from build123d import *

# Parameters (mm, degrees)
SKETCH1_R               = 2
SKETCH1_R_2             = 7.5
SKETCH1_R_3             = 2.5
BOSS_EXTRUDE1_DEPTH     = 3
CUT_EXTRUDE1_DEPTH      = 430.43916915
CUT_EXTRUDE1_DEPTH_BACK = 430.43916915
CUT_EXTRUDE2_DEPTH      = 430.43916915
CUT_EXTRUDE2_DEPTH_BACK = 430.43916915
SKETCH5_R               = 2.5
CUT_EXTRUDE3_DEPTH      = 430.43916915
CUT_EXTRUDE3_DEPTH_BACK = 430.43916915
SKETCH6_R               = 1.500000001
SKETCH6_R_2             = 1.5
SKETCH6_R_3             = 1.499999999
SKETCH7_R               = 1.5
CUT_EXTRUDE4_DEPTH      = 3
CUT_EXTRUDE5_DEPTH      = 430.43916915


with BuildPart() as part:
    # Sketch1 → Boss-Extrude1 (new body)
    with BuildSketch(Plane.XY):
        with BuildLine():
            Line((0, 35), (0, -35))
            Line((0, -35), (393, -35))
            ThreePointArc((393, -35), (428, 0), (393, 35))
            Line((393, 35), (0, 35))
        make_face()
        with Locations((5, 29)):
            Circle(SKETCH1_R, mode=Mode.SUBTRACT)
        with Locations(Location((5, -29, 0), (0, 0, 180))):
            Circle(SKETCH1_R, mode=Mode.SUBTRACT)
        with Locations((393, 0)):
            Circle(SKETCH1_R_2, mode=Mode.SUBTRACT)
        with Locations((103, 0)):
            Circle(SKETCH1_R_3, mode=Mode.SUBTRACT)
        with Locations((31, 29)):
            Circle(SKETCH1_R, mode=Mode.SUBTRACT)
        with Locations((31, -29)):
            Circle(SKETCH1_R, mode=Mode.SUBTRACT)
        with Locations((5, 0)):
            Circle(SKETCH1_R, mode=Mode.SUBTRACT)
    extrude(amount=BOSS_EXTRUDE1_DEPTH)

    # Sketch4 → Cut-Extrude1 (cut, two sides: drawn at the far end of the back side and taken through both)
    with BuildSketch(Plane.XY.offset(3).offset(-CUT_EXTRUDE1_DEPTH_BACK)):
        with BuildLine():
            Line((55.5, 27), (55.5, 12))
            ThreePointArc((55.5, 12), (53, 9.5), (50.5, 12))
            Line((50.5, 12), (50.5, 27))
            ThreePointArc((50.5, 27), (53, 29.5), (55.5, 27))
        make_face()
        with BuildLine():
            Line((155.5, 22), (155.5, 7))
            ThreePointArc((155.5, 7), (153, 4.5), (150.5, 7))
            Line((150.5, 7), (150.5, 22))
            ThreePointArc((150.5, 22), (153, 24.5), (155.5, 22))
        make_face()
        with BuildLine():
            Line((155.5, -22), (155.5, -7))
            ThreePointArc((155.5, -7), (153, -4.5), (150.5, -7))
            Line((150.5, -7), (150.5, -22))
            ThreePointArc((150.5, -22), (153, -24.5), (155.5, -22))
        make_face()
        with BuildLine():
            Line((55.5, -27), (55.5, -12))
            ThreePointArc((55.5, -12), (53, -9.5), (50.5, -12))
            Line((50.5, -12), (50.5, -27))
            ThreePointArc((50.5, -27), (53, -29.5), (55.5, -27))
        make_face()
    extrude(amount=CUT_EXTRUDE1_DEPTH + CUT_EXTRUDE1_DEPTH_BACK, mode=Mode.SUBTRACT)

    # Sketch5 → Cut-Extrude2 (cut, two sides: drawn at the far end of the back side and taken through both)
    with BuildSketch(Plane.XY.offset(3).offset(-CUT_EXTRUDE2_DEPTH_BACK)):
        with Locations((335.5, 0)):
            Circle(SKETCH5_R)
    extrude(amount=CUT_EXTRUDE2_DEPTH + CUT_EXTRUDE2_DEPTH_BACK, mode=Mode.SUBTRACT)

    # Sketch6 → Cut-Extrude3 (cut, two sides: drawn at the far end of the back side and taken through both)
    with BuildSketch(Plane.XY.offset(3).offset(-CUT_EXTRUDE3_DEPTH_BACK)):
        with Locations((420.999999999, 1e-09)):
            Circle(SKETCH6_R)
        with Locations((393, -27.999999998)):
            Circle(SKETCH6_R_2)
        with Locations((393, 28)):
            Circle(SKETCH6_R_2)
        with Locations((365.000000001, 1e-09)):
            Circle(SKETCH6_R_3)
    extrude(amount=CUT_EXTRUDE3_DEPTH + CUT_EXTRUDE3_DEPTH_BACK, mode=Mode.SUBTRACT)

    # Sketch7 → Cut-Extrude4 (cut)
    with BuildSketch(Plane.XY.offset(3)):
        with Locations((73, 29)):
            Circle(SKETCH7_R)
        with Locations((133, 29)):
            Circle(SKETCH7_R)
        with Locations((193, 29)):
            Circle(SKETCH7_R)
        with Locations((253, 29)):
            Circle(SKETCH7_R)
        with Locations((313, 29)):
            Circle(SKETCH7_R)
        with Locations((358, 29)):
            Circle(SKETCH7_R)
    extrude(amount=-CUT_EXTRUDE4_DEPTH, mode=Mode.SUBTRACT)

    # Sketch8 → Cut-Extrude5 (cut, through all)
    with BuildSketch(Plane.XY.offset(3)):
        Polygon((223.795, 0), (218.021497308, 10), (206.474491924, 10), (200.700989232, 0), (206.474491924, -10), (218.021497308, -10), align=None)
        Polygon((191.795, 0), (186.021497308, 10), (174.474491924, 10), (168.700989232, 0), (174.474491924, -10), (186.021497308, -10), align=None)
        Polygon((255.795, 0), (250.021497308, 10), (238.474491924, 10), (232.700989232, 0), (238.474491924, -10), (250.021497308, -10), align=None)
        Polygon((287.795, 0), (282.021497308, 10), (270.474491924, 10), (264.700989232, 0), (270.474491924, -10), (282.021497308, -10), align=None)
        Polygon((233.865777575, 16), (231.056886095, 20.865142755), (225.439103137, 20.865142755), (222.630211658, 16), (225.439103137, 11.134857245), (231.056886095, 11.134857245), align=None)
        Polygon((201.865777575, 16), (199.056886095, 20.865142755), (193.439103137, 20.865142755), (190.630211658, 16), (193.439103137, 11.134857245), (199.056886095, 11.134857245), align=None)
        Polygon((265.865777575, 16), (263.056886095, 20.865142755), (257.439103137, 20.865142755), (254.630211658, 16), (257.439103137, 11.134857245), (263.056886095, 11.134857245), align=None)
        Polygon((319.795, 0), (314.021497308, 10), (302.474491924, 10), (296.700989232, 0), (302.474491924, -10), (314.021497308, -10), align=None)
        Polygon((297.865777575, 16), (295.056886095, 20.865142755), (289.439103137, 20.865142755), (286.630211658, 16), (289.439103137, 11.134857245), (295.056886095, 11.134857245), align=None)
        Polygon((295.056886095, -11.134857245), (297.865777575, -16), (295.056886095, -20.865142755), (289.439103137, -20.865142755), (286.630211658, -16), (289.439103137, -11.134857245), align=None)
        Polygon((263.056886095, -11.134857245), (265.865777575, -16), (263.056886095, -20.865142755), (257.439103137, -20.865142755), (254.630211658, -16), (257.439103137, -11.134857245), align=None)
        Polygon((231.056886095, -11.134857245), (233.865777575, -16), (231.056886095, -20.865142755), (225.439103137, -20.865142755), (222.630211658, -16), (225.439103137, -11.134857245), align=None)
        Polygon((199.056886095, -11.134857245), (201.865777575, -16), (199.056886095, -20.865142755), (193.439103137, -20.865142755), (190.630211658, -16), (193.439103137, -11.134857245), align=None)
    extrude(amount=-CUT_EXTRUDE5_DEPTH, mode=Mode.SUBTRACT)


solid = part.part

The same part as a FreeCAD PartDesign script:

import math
import FreeCAD as App
import Part
import Sketcher
from FreeCAD import Vector
Q = App.Units.Quantity

doc = App.newDocument("Part")
body = doc.addObject("PartDesign::Body", "Body")

# Sketch on XY plane
sketch1 = body.newObject("Sketcher::SketchObject", "Sketch")
sketch1.AttachmentSupport = (doc.getObject("XY_Plane"), [""])
sketch1.MapMode = "FlatFace"
sketch1.addGeometry([
    Part.LineSegment(Vector(0, 35, 0), Vector(0, -35, 0)),  # 0
    Part.LineSegment(Vector(0, -35, 0), Vector(393, -35, 0)),  # 1
    Part.ArcOfCircle(Part.Circle(Vector(393, 0, 0), Vector(0, 0, 1), 35), math.radians(-90), math.radians(90)),  # 2
    Part.LineSegment(Vector(393, 35, 0), Vector(0, 35, 0)),  # 3
    Part.Circle(Vector(5, -29, 0), Vector(0, 0, 1), 2),  # 4
    Part.Circle(Vector(31, -29, 0), Vector(0, 0, 1), 2),  # 5
    Part.Circle(Vector(5, 0, 0), Vector(0, 0, 1), 2),  # 6
    Part.Circle(Vector(103, 0, 0), Vector(0, 0, 1), 2.5),  # 7
    Part.Circle(Vector(5, 29, 0), Vector(0, 0, 1), 2),  # 8
    Part.Circle(Vector(31, 29, 0), Vector(0, 0, 1), 2),  # 9
    Part.Circle(Vector(393, 0, 0), Vector(0, 0, 1), 7.5),  # 10
], False)
sketch1.addConstraint([
    Sketcher.Constraint("Coincident", 0, 2, 1, 1),
    Sketcher.Constraint("Tangent", 1, 2, 2, 1),
    Sketcher.Constraint("Tangent", 2, 2, 3, 1),
    Sketcher.Constraint("Coincident", 3, 2, 0, 1),
    Sketcher.Constraint("Vertical", 0),
    Sketcher.Constraint("Horizontal", 1),
    Sketcher.Constraint("Horizontal", 3),
    Sketcher.Constraint("Coincident", 10, 3, 2, 3),
    Sketcher.Constraint("Equal", 4, 5),
    Sketcher.Constraint("Equal", 5, 6),
    Sketcher.Constraint("Equal", 6, 8),
    Sketcher.Constraint("Equal", 8, 9),
    Sketcher.Constraint("Symmetric", 0, 2, 3, 2, -1, 1),
    Sketcher.Constraint("Symmetric", 4, 3, 8, 3, -1),
    Sketcher.Constraint("Symmetric", 5, 3, 9, 3, -1),
    Sketcher.Constraint("PointOnObject", 6, 3, -1),
    Sketcher.Constraint("PointOnObject", 7, 3, -1),
    Sketcher.Constraint("Horizontal", 4, 3, 5, 3),
    Sketcher.Constraint("Vertical", 4, 3, 6, 3),
    Sketcher.Constraint("Diameter", 4, 4.0),
    Sketcher.Constraint("Diameter", 7, 5.0),
    Sketcher.Constraint("Diameter", 10, 15.0),
    Sketcher.Constraint("Radius", 2, 35.0),
    Sketcher.Constraint("DistanceX", 1, 1, 1, 2, 393.0),
    Sketcher.Constraint("DistanceX", -1, 1, 4, 3, 5.0),
    Sketcher.Constraint("DistanceY", 4, 3, -1, 1, 29.0),
    Sketcher.Constraint("DistanceX", -1, 1, 5, 3, 31.0),
    Sketcher.Constraint("DistanceX", -1, 1, 7, 3, 103.0),
])
pad1 = body.newObject("PartDesign::Pad", "Pad")
pad1.Profile = sketch1
pad1.Length = 3

# Sketch on XY plane
sketch2 = body.newObject("Sketcher::SketchObject", "Sketch001")
sketch2.AttachmentSupport = (doc.getObject("XY_Plane"), [""])
sketch2.MapMode = "FlatFace"
sketch2.AttachmentOffset = App.Placement(Vector(0, 0, 3), App.Rotation())
sketch2.addGeometry([
    Part.LineSegment(Vector(55.5, 12, 0), Vector(55.5, 27, 0)),  # 0
    Part.ArcOfCircle(Part.Circle(Vector(53, 27, 0), Vector(0, 0, 1), 2.5), math.radians(0), math.radians(180)),  # 1
    Part.LineSegment(Vector(50.5, 27, 0), Vector(50.5, 12, 0)),  # 2
    Part.ArcOfCircle(Part.Circle(Vector(53, 12, 0), Vector(0, 0, 1), 2.5), math.radians(180), math.radians(360)),  # 3
    Part.LineSegment(Vector(155.5, 7, 0), Vector(155.5, 22, 0)),  # 4
    Part.ArcOfCircle(Part.Circle(Vector(153, 22, 0), Vector(0, 0, 1), 2.5), math.radians(0), math.radians(180)),  # 5
    Part.LineSegment(Vector(150.5, 22, 0), Vector(150.5, 7, 0)),  # 6
    Part.ArcOfCircle(Part.Circle(Vector(153, 7, 0), Vector(0, 0, 1), 2.5), math.radians(180), math.radians(360)),  # 7
    Part.LineSegment(Vector(155.5, -22, 0), Vector(155.5, -7, 0)),  # 8
    Part.ArcOfCircle(Part.Circle(Vector(153, -7, 0), Vector(0, 0, 1), 2.5), math.radians(0), math.radians(180)),  # 9
    Part.LineSegment(Vector(150.5, -7, 0), Vector(150.5, -22, 0)),  # 10
    Part.ArcOfCircle(Part.Circle(Vector(153, -22, 0), Vector(0, 0, 1), 2.5), math.radians(180), math.radians(360)),  # 11
    Part.LineSegment(Vector(55.5, -27, 0), Vector(55.5, -12, 0)),  # 12
    Part.ArcOfCircle(Part.Circle(Vector(53, -12, 0), Vector(0, 0, 1), 2.5), math.radians(0), math.radians(180)),  # 13
    Part.LineSegment(Vector(50.5, -12, 0), Vector(50.5, -27, 0)),  # 14
    Part.ArcOfCircle(Part.Circle(Vector(53, -27, 0), Vector(0, 0, 1), 2.5), math.radians(180), math.radians(360)),  # 15
], False)
sketch2.addConstraint([
    Sketcher.Constraint("Tangent", 0, 2, 1, 1),
    Sketcher.Constraint("Tangent", 1, 2, 2, 1),
    Sketcher.Constraint("Tangent", 2, 2, 3, 1),
    Sketcher.Constraint("Tangent", 3, 2, 0, 1),
    Sketcher.Constraint("Tangent", 4, 2, 5, 1),
    Sketcher.Constraint("Tangent", 5, 2, 6, 1),
    Sketcher.Constraint("Tangent", 6, 2, 7, 1),
    Sketcher.Constraint("Tangent", 7, 2, 4, 1),
    Sketcher.Constraint("Tangent", 8, 2, 9, 1),
    Sketcher.Constraint("Tangent", 9, 2, 10, 1),
    Sketcher.Constraint("Tangent", 10, 2, 11, 1),
    Sketcher.Constraint("Tangent", 11, 2, 8, 1),
    Sketcher.Constraint("Tangent", 12, 2, 13, 1),
    Sketcher.Constraint("Tangent", 13, 2, 14, 1),
    Sketcher.Constraint("Tangent", 14, 2, 15, 1),
    Sketcher.Constraint("Tangent", 15, 2, 12, 1),
    Sketcher.Constraint("Vertical", 0),
    Sketcher.Constraint("Vertical", 2),
    Sketcher.Constraint("Vertical", 4),
    Sketcher.Constraint("Vertical", 6),
    Sketcher.Constraint("Vertical", 8),
    Sketcher.Constraint("Vertical", 10),
    Sketcher.Constraint("Vertical", 12),
    Sketcher.Constraint("Vertical", 14),
    Sketcher.Constraint("Equal", 3, 5),
    Sketcher.Constraint("Equal", 7, 9),
    Sketcher.Constraint("Equal", 11, 13),
    Sketcher.Constraint("Symmetric", 7, 3, 9, 3, -1),
    Sketcher.Constraint("Symmetric", 3, 3, 13, 3, -1),
    Sketcher.Constraint("Equal", 2, 4),
    Sketcher.Constraint("Equal", 6, 8),
    Sketcher.Constraint("Equal", 10, 12),
    Sketcher.Constraint("Radius", 1, 2.5),
    Sketcher.Constraint("DistanceY", 0, 1, 0, 2, 15.0),
    Sketcher.Constraint("DistanceX", -1, 1, 1, 3, 53.0),
    Sketcher.Constraint("DistanceY", -1, 1, 1, 3, 27.0),
    Sketcher.Constraint("DistanceX", -1, 1, 5, 3, 153.0),
    Sketcher.Constraint("DistanceY", -1, 1, 5, 3, 22.0),
])
pocket1 = body.newObject("PartDesign::Pocket", "Pocket")
pocket1.Profile = sketch2
pocket1.Type = "ThroughAll"
pocket1.Midplane = True

# Sketch on XY plane
sketch3 = body.newObject("Sketcher::SketchObject", "Sketch002")
sketch3.AttachmentSupport = (doc.getObject("XY_Plane"), [""])
sketch3.MapMode = "FlatFace"
sketch3.AttachmentOffset = App.Placement(Vector(0, 0, 3), App.Rotation())
sketch3.addGeometry(Part.Circle(Vector(335.5, 0, 0), Vector(0, 0, 1), 2.5), False)
sketch3.addConstraint([
    Sketcher.Constraint("PointOnObject", 0, 3, -1),
    Sketcher.Constraint("Diameter", 0, 5.0),
    Sketcher.Constraint("DistanceX", -1, 1, 0, 3, 335.5),
])
pocket2 = body.newObject("PartDesign::Pocket", "Pocket001")
pocket2.Profile = sketch3
pocket2.Type = "ThroughAll"
pocket2.Midplane = True

# Sketch on XY plane
sketch4 = body.newObject("Sketcher::SketchObject", "Sketch003")
sketch4.AttachmentSupport = (doc.getObject("XY_Plane"), [""])
sketch4.MapMode = "FlatFace"
sketch4.AttachmentOffset = App.Placement(Vector(0, 0, 3), App.Rotation())
sketch4.addGeometry([
    Part.Circle(Vector(421, 0, 0), Vector(0, 0, 1), 1.5),
    Part.Circle(Vector(393, -28, 0), Vector(0, 0, 1), 1.5),
    Part.Circle(Vector(393, 28, 0), Vector(0, 0, 1), 1.5),
    Part.Circle(Vector(365, 0, 0), Vector(0, 0, 1), 1.5),
], False)
sketch4.addConstraint([
    Sketcher.Constraint("Equal", 0, 1),
    Sketcher.Constraint("Equal", 1, 2),
    Sketcher.Constraint("Equal", 2, 3),
    Sketcher.Constraint("Symmetric", 1, 3, 2, 3, -1),
    Sketcher.Constraint("PointOnObject", 0, 3, -1),
    Sketcher.Constraint("PointOnObject", 3, 3, -1),
    Sketcher.Constraint("Diameter", 0, 3.0),
    Sketcher.Constraint("DistanceX", -1, 1, 0, 3, 421.0),
    Sketcher.Constraint("DistanceX", -1, 1, 1, 3, 393.0),
    Sketcher.Constraint("DistanceY", 1, 3, -1, 1, 28.0),
    Sketcher.Constraint("DistanceX", -1, 1, 3, 3, 365.0),
])
pocket3 = body.newObject("PartDesign::Pocket", "Pocket002")
pocket3.Profile = sketch4
pocket3.Type = "ThroughAll"
pocket3.Midplane = True

# Sketch on XY plane
sketch5 = body.newObject("Sketcher::SketchObject", "Sketch004")
sketch5.AttachmentSupport = (doc.getObject("XY_Plane"), [""])
sketch5.MapMode = "FlatFace"
sketch5.AttachmentOffset = App.Placement(Vector(0, 0, 3), App.Rotation())
sketch5.addGeometry([
    Part.Circle(Vector(73, 29, 0), Vector(0, 0, 1), 1.5),  # 0
    Part.Circle(Vector(133, 29, 0), Vector(0, 0, 1), 1.5),  # 1
    Part.Circle(Vector(193, 29, 0), Vector(0, 0, 1), 1.5),  # 2
    Part.Circle(Vector(253, 29, 0), Vector(0, 0, 1), 1.5),  # 3
    Part.Circle(Vector(313, 29, 0), Vector(0, 0, 1), 1.5),  # 4
    Part.Circle(Vector(358, 29, 0), Vector(0, 0, 1), 1.5),  # 5
], False)
sketch5.addConstraint([
    Sketcher.Constraint("Equal", 0, 1),
    Sketcher.Constraint("Equal", 1, 2),
    Sketcher.Constraint("Equal", 2, 3),
    Sketcher.Constraint("Equal", 3, 4),
    Sketcher.Constraint("Equal", 4, 5),
    Sketcher.Constraint("Horizontal", 0, 3, 1, 3),
    Sketcher.Constraint("Horizontal", 1, 3, 2, 3),
    Sketcher.Constraint("Horizontal", 2, 3, 3, 3),
    Sketcher.Constraint("Horizontal", 3, 3, 4, 3),
    Sketcher.Constraint("Horizontal", 4, 3, 5, 3),
    Sketcher.Constraint("Diameter", 0, 3.0),
    Sketcher.Constraint("DistanceX", -1, 1, 0, 3, 73.0),
    Sketcher.Constraint("DistanceY", -1, 1, 0, 3, 29.0),
    Sketcher.Constraint("DistanceX", -1, 1, 1, 3, 133.0),
    Sketcher.Constraint("DistanceX", -1, 1, 2, 3, 193.0),
    Sketcher.Constraint("DistanceX", -1, 1, 3, 3, 253.0),
    Sketcher.Constraint("DistanceX", -1, 1, 4, 3, 313.0),
    Sketcher.Constraint("DistanceX", -1, 1, 5, 3, 358.0),
])
pocket4 = body.newObject("PartDesign::Pocket", "Pocket003")
pocket4.Profile = sketch5
pocket4.Length = 3

# Sketch on XY plane
sketch6 = body.newObject("Sketcher::SketchObject", "Sketch005")
sketch6.AttachmentSupport = (doc.getObject("XY_Plane"), [""])
sketch6.MapMode = "FlatFace"
sketch6.AttachmentOffset = App.Placement(Vector(0, 0, 3), App.Rotation())
sketch6.addGeometry([
    Part.LineSegment(Vector(223.795, 0, 0), Vector(218.021497, 10, 0)),  # 0
    Part.LineSegment(Vector(218.021497, 10, 0), Vector(206.474492, 10, 0)),  # 1
    Part.LineSegment(Vector(206.474492, 10, 0), Vector(200.700989, 0, 0)),  # 2
    Part.LineSegment(Vector(200.700989, 0, 0), Vector(206.474492, -10, 0)),  # 3
    Part.LineSegment(Vector(206.474492, -10, 0), Vector(218.021497, -10, 0)),  # 4
    Part.LineSegment(Vector(218.021497, -10, 0), Vector(223.795, 0, 0)),  # 5
    Part.LineSegment(Vector(191.795, 0, 0), Vector(186.021497, 10, 0)),  # 6
    Part.LineSegment(Vector(186.021497, 10, 0), Vector(174.474492, 10, 0)),  # 7
    Part.LineSegment(Vector(174.474492, 10, 0), Vector(168.700989, 0, 0)),  # 8
    Part.LineSegment(Vector(168.700989, 0, 0), Vector(174.474492, -10, 0)),  # 9
    Part.LineSegment(Vector(174.474492, -10, 0), Vector(186.021497, -10, 0)),  # 10
    Part.LineSegment(Vector(186.021497, -10, 0), Vector(191.795, 0, 0)),  # 11
    Part.LineSegment(Vector(255.795, 0, 0), Vector(250.021497, 10, 0)),  # 12
    Part.LineSegment(Vector(250.021497, 10, 0), Vector(238.474492, 10, 0)),  # 13
    Part.LineSegment(Vector(238.474492, 10, 0), Vector(232.700989, 0, 0)),  # 14
    Part.LineSegment(Vector(232.700989, 0, 0), Vector(238.474492, -10, 0)),  # 15
    Part.LineSegment(Vector(238.474492, -10, 0), Vector(250.021497, -10, 0)),  # 16
    Part.LineSegment(Vector(250.021497, -10, 0), Vector(255.795, 0, 0)),  # 17
    Part.LineSegment(Vector(287.795, 0, 0), Vector(282.021497, 10, 0)),  # 18
    Part.LineSegment(Vector(282.021497, 10, 0), Vector(270.474492, 10, 0)),  # 19
    Part.LineSegment(Vector(270.474492, 10, 0), Vector(264.700989, 0, 0)),  # 20
    Part.LineSegment(Vector(264.700989, 0, 0), Vector(270.474492, -10, 0)),  # 21
    Part.LineSegment(Vector(270.474492, -10, 0), Vector(282.021497, -10, 0)),  # 22
    Part.LineSegment(Vector(282.021497, -10, 0), Vector(287.795, 0, 0)),  # 23
    Part.LineSegment(Vector(233.865778, 16, 0), Vector(231.056886, 20.865143, 0)),  # 24
    Part.LineSegment(Vector(231.056886, 20.865143, 0), Vector(225.439103, 20.865143, 0)),  # 25
    Part.LineSegment(Vector(225.439103, 20.865143, 0), Vector(222.630212, 16, 0)),  # 26
    Part.LineSegment(Vector(222.630212, 16, 0), Vector(225.439103, 11.134857, 0)),  # 27
    Part.LineSegment(Vector(225.439103, 11.134857, 0), Vector(231.056886, 11.134857, 0)),  # 28
    Part.LineSegment(Vector(231.056886, 11.134857, 0), Vector(233.865778, 16, 0)),  # 29
    Part.LineSegment(Vector(201.865778, 16, 0), Vector(199.056886, 20.865143, 0)),  # 30
    Part.LineSegment(Vector(199.056886, 20.865143, 0), Vector(193.439103, 20.865143, 0)),  # 31
    Part.LineSegment(Vector(193.439103, 20.865143, 0), Vector(190.630212, 16, 0)),  # 32
    Part.LineSegment(Vector(190.630212, 16, 0), Vector(193.439103, 11.134857, 0)),  # 33
    Part.LineSegment(Vector(193.439103, 11.134857, 0), Vector(199.056886, 11.134857, 0)),  # 34
    Part.LineSegment(Vector(199.056886, 11.134857, 0), Vector(201.865778, 16, 0)),  # 35
    Part.LineSegment(Vector(265.865778, 16, 0), Vector(263.056886, 20.865143, 0)),  # 36
    Part.LineSegment(Vector(263.056886, 20.865143, 0), Vector(257.439103, 20.865143, 0)),  # 37
    Part.LineSegment(Vector(257.439103, 20.865143, 0), Vector(254.630212, 16, 0)),  # 38
    Part.LineSegment(Vector(254.630212, 16, 0), Vector(257.439103, 11.134857, 0)),  # 39
    Part.LineSegment(Vector(257.439103, 11.134857, 0), Vector(263.056886, 11.134857, 0)),  # 40
    Part.LineSegment(Vector(263.056886, 11.134857, 0), Vector(265.865778, 16, 0)),  # 41
    Part.LineSegment(Vector(319.795, 0, 0), Vector(314.021497, 10, 0)),  # 42
    Part.LineSegment(Vector(314.021497, 10, 0), Vector(302.474492, 10, 0)),  # 43
    Part.LineSegment(Vector(302.474492, 10, 0), Vector(296.700989, 0, 0)),  # 44
    Part.LineSegment(Vector(296.700989, 0, 0), Vector(302.474492, -10, 0)),  # 45
    Part.LineSegment(Vector(302.474492, -10, 0), Vector(314.021497, -10, 0)),  # 46
    Part.LineSegment(Vector(314.021497, -10, 0), Vector(319.795, 0, 0)),  # 47
    Part.LineSegment(Vector(297.865778, 16, 0), Vector(295.056886, 20.865143, 0)),  # 48
    Part.LineSegment(Vector(295.056886, 20.865143, 0), Vector(289.439103, 20.865143, 0)),  # 49
    Part.LineSegment(Vector(289.439103, 20.865143, 0), Vector(286.630212, 16, 0)),  # 50
    Part.LineSegment(Vector(286.630212, 16, 0), Vector(289.439103, 11.134857, 0)),  # 51
    Part.LineSegment(Vector(289.439103, 11.134857, 0), Vector(295.056886, 11.134857, 0)),  # 52
    Part.LineSegment(Vector(295.056886, 11.134857, 0), Vector(297.865778, 16, 0)),  # 53
    Part.LineSegment(Vector(297.865778, -16, 0), Vector(295.056886, -11.134857, 0)),  # 54
    Part.LineSegment(Vector(295.056886, -11.134857, 0), Vector(289.439103, -11.134857, 0)),  # 55
    Part.LineSegment(Vector(289.439103, -11.134857, 0), Vector(286.630212, -16, 0)),  # 56
    Part.LineSegment(Vector(286.630212, -16, 0), Vector(289.439103, -20.865143, 0)),  # 57
    Part.LineSegment(Vector(289.439103, -20.865143, 0), Vector(295.056886, -20.865143, 0)),  # 58
    Part.LineSegment(Vector(295.056886, -20.865143, 0), Vector(297.865778, -16, 0)),  # 59
    Part.LineSegment(Vector(265.865778, -16, 0), Vector(263.056886, -11.134857, 0)),  # 60
    Part.LineSegment(Vector(263.056886, -11.134857, 0), Vector(257.439103, -11.134857, 0)),  # 61
    Part.LineSegment(Vector(257.439103, -11.134857, 0), Vector(254.630212, -16, 0)),  # 62
    Part.LineSegment(Vector(254.630212, -16, 0), Vector(257.439103, -20.865143, 0)),  # 63
    Part.LineSegment(Vector(257.439103, -20.865143, 0), Vector(263.056886, -20.865143, 0)),  # 64
    Part.LineSegment(Vector(263.056886, -20.865143, 0), Vector(265.865778, -16, 0)),  # 65
    Part.LineSegment(Vector(233.865778, -16, 0), Vector(231.056886, -11.134857, 0)),  # 66
    Part.LineSegment(Vector(231.056886, -11.134857, 0), Vector(225.439103, -11.134857, 0)),  # 67
    Part.LineSegment(Vector(225.439103, -11.134857, 0), Vector(222.630212, -16, 0)),  # 68
    Part.LineSegment(Vector(222.630212, -16, 0), Vector(225.439103, -20.865143, 0)),  # 69
    Part.LineSegment(Vector(225.439103, -20.865143, 0), Vector(231.056886, -20.865143, 0)),  # 70
    Part.LineSegment(Vector(231.056886, -20.865143, 0), Vector(233.865778, -16, 0)),  # 71
    Part.LineSegment(Vector(201.865778, -16, 0), Vector(199.056886, -11.134857, 0)),  # 72
    Part.LineSegment(Vector(199.056886, -11.134857, 0), Vector(193.439103, -11.134857, 0)),  # 73
    Part.LineSegment(Vector(193.439103, -11.134857, 0), Vector(190.630212, -16, 0)),  # 74
    Part.LineSegment(Vector(190.630212, -16, 0), Vector(193.439103, -20.865143, 0)),  # 75
    Part.LineSegment(Vector(193.439103, -20.865143, 0), Vector(199.056886, -20.865143, 0)),  # 76
    Part.LineSegment(Vector(199.056886, -20.865143, 0), Vector(201.865778, -16, 0)),  # 77
], False)
sketch6.addConstraint([
    Sketcher.Constraint("Coincident", 0, 2, 1, 1),
    Sketcher.Constraint("Coincident", 1, 2, 2, 1),
    Sketcher.Constraint("Coincident", 2, 2, 3, 1),
    Sketcher.Constraint("Coincident", 3, 2, 4, 1),
    Sketcher.Constraint("Coincident", 4, 2, 5, 1),
    Sketcher.Constraint("Coincident", 5, 2, 0, 1),
    Sketcher.Constraint("Coincident", 6, 2, 7, 1),
    Sketcher.Constraint("Coincident", 7, 2, 8, 1),
    Sketcher.Constraint("Coincident", 8, 2, 9, 1),
    Sketcher.Constraint("Coincident", 9, 2, 10, 1),
    Sketcher.Constraint("Coincident", 10, 2, 11, 1),
    Sketcher.Constraint("Coincident", 11, 2, 6, 1),
    Sketcher.Constraint("Coincident", 12, 2, 13, 1),
    Sketcher.Constraint("Coincident", 13, 2, 14, 1),
    Sketcher.Constraint("Coincident", 14, 2, 15, 1),
    Sketcher.Constraint("Coincident", 15, 2, 16, 1),
    Sketcher.Constraint("Coincident", 16, 2, 17, 1),
    Sketcher.Constraint("Coincident", 17, 2, 12, 1),
    Sketcher.Constraint("Coincident", 18, 2, 19, 1),
    Sketcher.Constraint("Coincident", 19, 2, 20, 1),
    Sketcher.Constraint("Coincident", 20, 2, 21, 1),
    Sketcher.Constraint("Coincident", 21, 2, 22, 1),
    Sketcher.Constraint("Coincident", 22, 2, 23, 1),
    Sketcher.Constraint("Coincident", 23, 2, 18, 1),
    Sketcher.Constraint("Coincident", 24, 2, 25, 1),
    Sketcher.Constraint("Coincident", 25, 2, 26, 1),
    Sketcher.Constraint("Coincident", 26, 2, 27, 1),
    Sketcher.Constraint("Coincident", 27, 2, 28, 1),
    Sketcher.Constraint("Coincident", 28, 2, 29, 1),
    Sketcher.Constraint("Coincident", 29, 2, 24, 1),
    Sketcher.Constraint("Coincident", 30, 2, 31, 1),
    Sketcher.Constraint("Coincident", 31, 2, 32, 1),
    Sketcher.Constraint("Coincident", 32, 2, 33, 1),
    Sketcher.Constraint("Coincident", 33, 2, 34, 1),
    Sketcher.Constraint("Coincident", 34, 2, 35, 1),
    Sketcher.Constraint("Coincident", 35, 2, 30, 1),
    Sketcher.Constraint("Coincident", 36, 2, 37, 1),
    Sketcher.Constraint("Coincident", 37, 2, 38, 1),
    Sketcher.Constraint("Coincident", 38, 2, 39, 1),
    Sketcher.Constraint("Coincident", 39, 2, 40, 1),
    Sketcher.Constraint("Coincident", 40, 2, 41, 1),
    Sketcher.Constraint("Coincident", 41, 2, 36, 1),
    Sketcher.Constraint("Coincident", 42, 2, 43, 1),
    Sketcher.Constraint("Coincident", 43, 2, 44, 1),
    Sketcher.Constraint("Coincident", 44, 2, 45, 1),
    Sketcher.Constraint("Coincident", 45, 2, 46, 1),
    Sketcher.Constraint("Coincident", 46, 2, 47, 1),
    Sketcher.Constraint("Coincident", 47, 2, 42, 1),
    Sketcher.Constraint("Coincident", 48, 2, 49, 1),
    Sketcher.Constraint("Coincident", 49, 2, 50, 1),
    Sketcher.Constraint("Coincident", 50, 2, 51, 1),
    Sketcher.Constraint("Coincident", 51, 2, 52, 1),
    Sketcher.Constraint("Coincident", 52, 2, 53, 1),
    Sketcher.Constraint("Coincident", 53, 2, 48, 1),
    Sketcher.Constraint("Coincident", 54, 2, 55, 1),
    Sketcher.Constraint("Coincident", 55, 2, 56, 1),
    Sketcher.Constraint("Coincident", 56, 2, 57, 1),
    Sketcher.Constraint("Coincident", 57, 2, 58, 1),
    Sketcher.Constraint("Coincident", 58, 2, 59, 1),
    Sketcher.Constraint("Coincident", 59, 2, 54, 1),
    Sketcher.Constraint("Coincident", 60, 2, 61, 1),
    Sketcher.Constraint("Coincident", 61, 2, 62, 1),
    Sketcher.Constraint("Coincident", 62, 2, 63, 1),
    Sketcher.Constraint("Coincident", 63, 2, 64, 1),
    Sketcher.Constraint("Coincident", 64, 2, 65, 1),
    Sketcher.Constraint("Coincident", 65, 2, 60, 1),
    Sketcher.Constraint("Coincident", 66, 2, 67, 1),
    Sketcher.Constraint("Coincident", 67, 2, 68, 1),
    Sketcher.Constraint("Coincident", 68, 2, 69, 1),
    Sketcher.Constraint("Coincident", 69, 2, 70, 1),
    Sketcher.Constraint("Coincident", 70, 2, 71, 1),
    Sketcher.Constraint("Coincident", 71, 2, 66, 1),
    Sketcher.Constraint("Coincident", 72, 2, 73, 1),
    Sketcher.Constraint("Coincident", 73, 2, 74, 1),
    Sketcher.Constraint("Coincident", 74, 2, 75, 1),
    Sketcher.Constraint("Coincident", 75, 2, 76, 1),
    Sketcher.Constraint("Coincident", 76, 2, 77, 1),
    Sketcher.Constraint("Coincident", 77, 2, 72, 1),
    Sketcher.Constraint("Horizontal", 1),
    Sketcher.Constraint("Horizontal", 4),
    Sketcher.Constraint("Horizontal", 7),
    Sketcher.Constraint("Horizontal", 10),
    Sketcher.Constraint("Horizontal", 13),
    Sketcher.Constraint("Horizontal", 16),
    Sketcher.Constraint("Horizontal", 19),
    Sketcher.Constraint("Horizontal", 22),
    Sketcher.Constraint("Horizontal", 25),
    Sketcher.Constraint("Horizontal", 28),
    Sketcher.Constraint("Horizontal", 31),
    Sketcher.Constraint("Horizontal", 34),
    Sketcher.Constraint("Horizontal", 37),
    Sketcher.Constraint("Horizontal", 40),
    Sketcher.Constraint("Horizontal", 43),
    Sketcher.Constraint("Horizontal", 46),
    Sketcher.Constraint("Horizontal", 49),
    Sketcher.Constraint("Horizontal", 52),
    Sketcher.Constraint("Horizontal", 55),
    Sketcher.Constraint("Horizontal", 58),
    Sketcher.Constraint("Horizontal", 61),
    Sketcher.Constraint("Horizontal", 64),
    Sketcher.Constraint("Horizontal", 67),
    Sketcher.Constraint("Horizontal", 70),
    Sketcher.Constraint("Horizontal", 73),
    Sketcher.Constraint("Horizontal", 76),
    Sketcher.Constraint("Symmetric", 1, 2, 3, 2, -1),
    Sketcher.Constraint("Symmetric", 7, 2, 9, 2, -1),
    Sketcher.Constraint("Symmetric", 13, 2, 15, 2, -1),
    Sketcher.Constraint("Symmetric", 19, 2, 21, 2, -1),
    Sketcher.Constraint("Symmetric", 43, 2, 45, 2, -1),
    Sketcher.Constraint("Symmetric", 52, 2, 54, 2, -1),
    Sketcher.Constraint("Symmetric", 50, 2, 56, 2, -1),
    Sketcher.Constraint("Symmetric", 49, 2, 57, 2, -1),
    Sketcher.Constraint("Symmetric", 53, 2, 59, 2, -1),
    Sketcher.Constraint("Symmetric", 40, 2, 60, 2, -1),
    Sketcher.Constraint("Symmetric", 38, 2, 62, 2, -1),
    Sketcher.Constraint("Symmetric", 37, 2, 63, 2, -1),
    Sketcher.Constraint("Symmetric", 41, 2, 65, 2, -1),
    Sketcher.Constraint("Symmetric", 28, 2, 66, 2, -1),
    Sketcher.Constraint("Symmetric", 26, 2, 68, 2, -1),
    Sketcher.Constraint("Symmetric", 25, 2, 69, 2, -1),
    Sketcher.Constraint("Symmetric", 29, 2, 71, 2, -1),
    Sketcher.Constraint("Symmetric", 34, 2, 72, 2, -1),
    Sketcher.Constraint("Symmetric", 32, 2, 74, 2, -1),
    Sketcher.Constraint("Symmetric", 31, 2, 75, 2, -1),
    Sketcher.Constraint("Symmetric", 35, 2, 77, 2, -1),
    Sketcher.Constraint("PointOnObject", 2, 2, -1),
    Sketcher.Constraint("PointOnObject", 5, 2, -1),
    Sketcher.Constraint("PointOnObject", 8, 2, -1),
    Sketcher.Constraint("PointOnObject", 11, 2, -1),
    Sketcher.Constraint("PointOnObject", 14, 2, -1),
    Sketcher.Constraint("PointOnObject", 17, 2, -1),
    Sketcher.Constraint("PointOnObject", 20, 2, -1),
    Sketcher.Constraint("PointOnObject", 23, 2, -1),
    Sketcher.Constraint("PointOnObject", 44, 2, -1),
    Sketcher.Constraint("PointOnObject", 47, 2, -1),
    Sketcher.Constraint("Parallel", 0, 3),
    Sketcher.Constraint("Parallel", 2, 5),
    Sketcher.Constraint("Parallel", 3, 6),
    Sketcher.Constraint("Parallel", 5, 8),
    Sketcher.Constraint("Parallel", 8, 11),
    Sketcher.Constraint("Parallel", 9, 12),
    Sketcher.Constraint("Parallel", 11, 14),
    Sketcher.Constraint("Parallel", 14, 17),
    Sketcher.Constraint("Parallel", 15, 18),
    Sketcher.Constraint("Parallel", 17, 20),
    Sketcher.Constraint("Parallel", 20, 23),
    Sketcher.Constraint("Parallel", 21, 24),
    Sketcher.Constraint("Parallel", 23, 26),
    Sketcher.Constraint("Parallel", 24, 27),
    Sketcher.Constraint("Parallel", 26, 29),
    Sketcher.Constraint("Parallel", 27, 30),
    Sketcher.Constraint("Parallel", 29, 32),
    Sketcher.Constraint("Parallel", 30, 33),
    Sketcher.Constraint("Parallel", 32, 35),
    Sketcher.Constraint("Parallel", 33, 36),
    Sketcher.Constraint("Parallel", 35, 38),
    Sketcher.Constraint("Parallel", 36, 39),
    Sketcher.Constraint("Parallel", 38, 41),
    Sketcher.Constraint("Parallel", 39, 42),
    Sketcher.Constraint("Parallel", 41, 44),
    Sketcher.Constraint("Parallel", 44, 47),
    Sketcher.Constraint("Parallel", 45, 48),
    Sketcher.Constraint("Parallel", 47, 50),
    Sketcher.Constraint("Parallel", 48, 51),
    Sketcher.Constraint("Parallel", 50, 53),
    Sketcher.Constraint("Parallel", 53, 56),
    Sketcher.Constraint("Parallel", 56, 59),
    Sketcher.Constraint("Parallel", 59, 62),
    Sketcher.Constraint("Parallel", 62, 65),
    Sketcher.Constraint("Parallel", 65, 68),
    Sketcher.Constraint("Parallel", 68, 71),
    Sketcher.Constraint("Parallel", 71, 74),
    Sketcher.Constraint("Parallel", 74, 77),
    Sketcher.Constraint("Horizontal", 1, 2, 6, 2),
    Sketcher.Constraint("Horizontal", 7, 2, 12, 2),
    Sketcher.Constraint("Horizontal", 13, 2, 18, 2),
    Sketcher.Constraint("Horizontal", 26, 2, 29, 2),
    Sketcher.Constraint("Horizontal", 25, 2, 30, 2),
    Sketcher.Constraint("Horizontal", 29, 2, 32, 2),
    Sketcher.Constraint("Horizontal", 28, 2, 33, 2),
    Sketcher.Constraint("Horizontal", 32, 2, 35, 2),
    Sketcher.Constraint("Horizontal", 31, 2, 36, 2),
    Sketcher.Constraint("Horizontal", 35, 2, 38, 2),
    Sketcher.Constraint("Horizontal", 34, 2, 39, 2),
    Sketcher.Constraint("Horizontal", 38, 2, 41, 2),
    Sketcher.Constraint("Horizontal", 19, 2, 42, 2),
    Sketcher.Constraint("Horizontal", 37, 2, 48, 2),
    Sketcher.Constraint("Horizontal", 41, 2, 50, 2),
    Sketcher.Constraint("Horizontal", 40, 2, 51, 2),
    Sketcher.Constraint("Horizontal", 50, 2, 53, 2),
    Sketcher.Constraint("Vertical", 25, 2, 27, 2),
    Sketcher.Constraint("Equal", 4, 7),
    Sketcher.Constraint("Equal", 10, 13),
    Sketcher.Constraint("Equal", 16, 19),
    Sketcher.Constraint("Equal", 28, 31),
    Sketcher.Constraint("Equal", 34, 37),
    Sketcher.Constraint("Equal", 22, 43),
    Sketcher.Constraint("Equal", 40, 49),
    Sketcher.Constraint("Angle", 0, Q("120 deg")),
    Sketcher.Constraint("DistanceY", -1, 1, 0, 2, 10.0),
    Sketcher.Constraint("DistanceY", -1, 1, 26, 2, 16.0),
    Sketcher.Constraint("DistanceX", -1, 1, 5, 2, 223.795),
    Sketcher.Constraint("DistanceX", -1, 1, 11, 2, 191.795),
    Sketcher.Constraint("DistanceX", -1, 1, 17, 2, 255.795),
    Sketcher.Constraint("DistanceX", -1, 1, 23, 2, 287.795),
    Sketcher.Constraint("DistanceX", -1, 1, 47, 2, 319.795),
    Sketcher.Constraint("DistanceX", 1, 2, 1, 1, 11.547005),
    Sketcher.Constraint("DistanceX", 25, 2, 25, 1, 5.617783),
    Sketcher.Constraint("DistanceX", -1, 1, 26, 2, 222.630212),
    Sketcher.Constraint("DistanceX", -1, 1, 32, 2, 190.630212),
    Sketcher.Constraint("DistanceX", -1, 1, 38, 2, 254.630212),
    Sketcher.Constraint("DistanceX", -1, 1, 50, 2, 286.630212),
    Sketcher.Constraint("Distance", 24, 5.617783),
])
pocket5 = body.newObject("PartDesign::Pocket", "Pocket004")
pocket5.Profile = sketch6
pocket5.Type = "ThroughAll"

doc.recompute()
